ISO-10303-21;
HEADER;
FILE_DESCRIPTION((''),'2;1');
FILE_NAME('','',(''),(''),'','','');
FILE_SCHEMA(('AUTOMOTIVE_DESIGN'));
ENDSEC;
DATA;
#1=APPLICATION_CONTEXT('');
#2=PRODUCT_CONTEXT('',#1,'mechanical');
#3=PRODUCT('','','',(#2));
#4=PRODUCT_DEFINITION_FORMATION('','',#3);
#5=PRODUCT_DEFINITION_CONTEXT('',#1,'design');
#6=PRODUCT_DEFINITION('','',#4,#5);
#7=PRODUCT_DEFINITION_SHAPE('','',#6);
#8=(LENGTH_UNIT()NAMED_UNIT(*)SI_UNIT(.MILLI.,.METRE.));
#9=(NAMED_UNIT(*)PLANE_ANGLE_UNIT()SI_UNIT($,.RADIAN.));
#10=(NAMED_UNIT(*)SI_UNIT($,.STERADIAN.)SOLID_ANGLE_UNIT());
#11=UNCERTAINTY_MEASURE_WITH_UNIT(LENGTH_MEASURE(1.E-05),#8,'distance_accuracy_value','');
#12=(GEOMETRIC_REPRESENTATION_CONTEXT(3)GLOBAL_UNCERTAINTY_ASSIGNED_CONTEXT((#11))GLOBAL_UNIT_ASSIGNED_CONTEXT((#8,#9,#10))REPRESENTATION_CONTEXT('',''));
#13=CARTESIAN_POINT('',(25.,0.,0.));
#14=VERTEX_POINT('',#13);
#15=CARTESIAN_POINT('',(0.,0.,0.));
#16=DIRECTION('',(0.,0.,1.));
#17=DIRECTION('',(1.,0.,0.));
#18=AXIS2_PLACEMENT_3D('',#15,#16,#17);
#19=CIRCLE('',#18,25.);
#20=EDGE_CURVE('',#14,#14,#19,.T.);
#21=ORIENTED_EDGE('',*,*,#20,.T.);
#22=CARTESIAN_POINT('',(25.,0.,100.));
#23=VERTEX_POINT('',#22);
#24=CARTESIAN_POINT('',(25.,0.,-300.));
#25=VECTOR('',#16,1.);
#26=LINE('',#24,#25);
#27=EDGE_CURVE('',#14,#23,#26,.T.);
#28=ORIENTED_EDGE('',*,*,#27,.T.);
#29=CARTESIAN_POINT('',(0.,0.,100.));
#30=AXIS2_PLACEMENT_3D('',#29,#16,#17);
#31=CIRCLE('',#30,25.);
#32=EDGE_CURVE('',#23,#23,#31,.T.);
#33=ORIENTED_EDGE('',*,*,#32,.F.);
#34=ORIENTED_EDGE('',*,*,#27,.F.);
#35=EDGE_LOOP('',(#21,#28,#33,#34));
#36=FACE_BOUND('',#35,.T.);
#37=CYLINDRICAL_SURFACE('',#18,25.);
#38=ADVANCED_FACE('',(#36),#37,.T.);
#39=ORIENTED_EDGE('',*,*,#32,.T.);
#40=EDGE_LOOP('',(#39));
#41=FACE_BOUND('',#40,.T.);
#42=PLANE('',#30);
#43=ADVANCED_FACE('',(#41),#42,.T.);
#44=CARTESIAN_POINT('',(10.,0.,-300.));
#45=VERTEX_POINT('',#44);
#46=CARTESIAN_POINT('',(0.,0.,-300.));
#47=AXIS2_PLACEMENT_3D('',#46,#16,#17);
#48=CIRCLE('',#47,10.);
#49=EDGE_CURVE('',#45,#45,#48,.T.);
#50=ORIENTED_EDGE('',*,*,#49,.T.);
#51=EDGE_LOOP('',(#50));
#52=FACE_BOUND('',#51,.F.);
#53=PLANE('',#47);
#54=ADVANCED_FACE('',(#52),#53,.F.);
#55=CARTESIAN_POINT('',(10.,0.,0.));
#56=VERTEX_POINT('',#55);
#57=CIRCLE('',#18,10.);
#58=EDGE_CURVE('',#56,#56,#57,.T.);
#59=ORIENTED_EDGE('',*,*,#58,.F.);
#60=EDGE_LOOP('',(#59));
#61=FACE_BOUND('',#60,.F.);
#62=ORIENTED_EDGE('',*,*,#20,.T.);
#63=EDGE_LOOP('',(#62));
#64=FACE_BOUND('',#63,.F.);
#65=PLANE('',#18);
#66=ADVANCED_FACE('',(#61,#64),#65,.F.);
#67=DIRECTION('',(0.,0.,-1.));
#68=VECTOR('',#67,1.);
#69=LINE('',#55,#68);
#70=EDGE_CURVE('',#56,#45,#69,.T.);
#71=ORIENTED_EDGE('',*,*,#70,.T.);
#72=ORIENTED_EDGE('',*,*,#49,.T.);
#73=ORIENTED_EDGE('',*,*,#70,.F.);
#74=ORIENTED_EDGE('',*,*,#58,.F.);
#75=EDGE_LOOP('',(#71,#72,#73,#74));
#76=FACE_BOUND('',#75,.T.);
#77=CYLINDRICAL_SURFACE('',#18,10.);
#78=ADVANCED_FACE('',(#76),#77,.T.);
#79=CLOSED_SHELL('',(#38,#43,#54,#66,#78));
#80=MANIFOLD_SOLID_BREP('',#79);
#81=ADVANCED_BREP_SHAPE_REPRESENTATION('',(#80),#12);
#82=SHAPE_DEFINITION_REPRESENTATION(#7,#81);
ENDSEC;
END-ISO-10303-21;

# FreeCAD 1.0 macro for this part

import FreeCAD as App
import Part
import Sketcher

V = App.Vector
Q = App.Units.Quantity

doc = App.newDocument("Part")
body = doc.addObject("PartDesign::Body", "Body")

sketch1 = body.newObject("Sketcher::SketchObject", "Sketch")
sketch1.AttachmentSupport = (doc.getObject("XY_Plane"), [""])
sketch1.MapMode = "FlatFace"
sketch1.addGeometry(Part.Circle(V(0, 0, 0), V(0, 0, 1), 25), False)
sketch1.addConstraint([
    Sketcher.Constraint("Coincident", 0, 3, -1, 1),
    Sketcher.Constraint("Diameter", 0, Q("50 mm")),
])
pad1 = body.newObject("PartDesign::Pad", "Pad")
pad1.Profile = sketch1
pad1.Type = "TwoLengths"
pad1.Length = 100
pad1.Length2 = 300

sketch2 = body.newObject("Sketcher::SketchObject", "Sketch001")
sketch2.AttachmentSupport = (doc.getObject("XY_Plane"), [""])
sketch2.MapMode = "FlatFace"
sketch2.addGeometry([
    Part.Circle(V(0, 0, 0), V(0, 0, 1), 25),
    Part.Circle(V(0, 0, 0), V(0, 0, 1), 10),
], False)
sketch2.addConstraint([
    Sketcher.Constraint("Coincident", 0, 3, -1, 1),
    Sketcher.Constraint("Coincident", 1, 3, -1, 1),
    Sketcher.Constraint("Diameter", 0, Q("50 mm")),
    Sketcher.Constraint("Diameter", 1, Q("20 mm")),
])
pocket1 = body.newObject("PartDesign::Pocket", "Pocket")
pocket1.Profile = sketch2
pocket1.Length = 300

doc.recompute()
